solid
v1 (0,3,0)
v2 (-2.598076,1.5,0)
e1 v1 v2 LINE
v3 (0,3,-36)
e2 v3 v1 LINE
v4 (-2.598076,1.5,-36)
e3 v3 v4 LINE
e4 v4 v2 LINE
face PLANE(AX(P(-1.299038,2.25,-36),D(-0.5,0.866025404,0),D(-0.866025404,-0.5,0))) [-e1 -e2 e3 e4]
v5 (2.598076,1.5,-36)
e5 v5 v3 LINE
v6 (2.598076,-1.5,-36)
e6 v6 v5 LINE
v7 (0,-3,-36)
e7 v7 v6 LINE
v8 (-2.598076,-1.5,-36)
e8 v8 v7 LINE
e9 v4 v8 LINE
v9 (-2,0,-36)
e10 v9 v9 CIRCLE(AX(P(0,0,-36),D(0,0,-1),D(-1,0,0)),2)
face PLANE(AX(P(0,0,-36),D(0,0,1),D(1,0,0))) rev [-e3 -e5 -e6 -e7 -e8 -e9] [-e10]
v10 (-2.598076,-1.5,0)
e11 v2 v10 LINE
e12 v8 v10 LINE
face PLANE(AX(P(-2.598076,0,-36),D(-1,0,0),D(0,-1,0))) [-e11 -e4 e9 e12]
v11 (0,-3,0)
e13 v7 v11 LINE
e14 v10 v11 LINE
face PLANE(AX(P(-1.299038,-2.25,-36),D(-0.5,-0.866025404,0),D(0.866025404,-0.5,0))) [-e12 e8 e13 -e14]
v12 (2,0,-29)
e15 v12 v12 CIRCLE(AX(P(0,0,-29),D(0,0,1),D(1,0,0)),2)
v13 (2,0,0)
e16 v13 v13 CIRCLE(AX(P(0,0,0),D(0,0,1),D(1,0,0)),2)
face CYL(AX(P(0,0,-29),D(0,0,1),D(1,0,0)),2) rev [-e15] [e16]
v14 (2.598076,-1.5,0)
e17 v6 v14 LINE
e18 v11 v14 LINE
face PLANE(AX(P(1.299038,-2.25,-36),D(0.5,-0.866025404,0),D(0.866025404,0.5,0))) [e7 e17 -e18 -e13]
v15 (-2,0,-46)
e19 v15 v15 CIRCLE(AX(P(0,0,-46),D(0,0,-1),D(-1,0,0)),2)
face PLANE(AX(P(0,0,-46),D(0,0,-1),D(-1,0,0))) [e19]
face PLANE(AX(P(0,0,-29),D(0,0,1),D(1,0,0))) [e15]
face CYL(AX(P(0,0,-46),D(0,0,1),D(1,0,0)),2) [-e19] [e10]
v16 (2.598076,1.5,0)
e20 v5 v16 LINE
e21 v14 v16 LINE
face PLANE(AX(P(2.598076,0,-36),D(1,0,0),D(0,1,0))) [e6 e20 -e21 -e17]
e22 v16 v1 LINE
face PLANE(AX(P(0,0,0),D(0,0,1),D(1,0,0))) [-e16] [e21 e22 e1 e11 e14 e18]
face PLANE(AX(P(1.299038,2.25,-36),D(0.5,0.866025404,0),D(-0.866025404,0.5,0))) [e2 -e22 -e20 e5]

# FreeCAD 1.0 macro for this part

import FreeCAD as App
import Part
import Sketcher
from FreeCAD import Vector
Q = App.Units.Quantity


def add_polygon(sketch, points):
    """Adds a closed chain of lines whose ends are joined by coincident constraints."""
    first, n = sketch.GeometryCount, len(points)
    for a, b in zip(points, points[1:] + points[:1]):
        sketch.addGeometry(Part.LineSegment(App.Vector(*a, 0), App.Vector(*b, 0)), False)
    for i in range(n):
        sketch.addConstraint(Sketcher.Constraint("Coincident", first + i, 2, first + (i + 1) % n, 1))

doc = App.newDocument("Part")
params = doc.addObject("Spreadsheet::Sheet", "Params")
for row, (alias, value) in enumerate([
    ("sketch1_height", "3 mm"),
    ("sketch1_length", "3 mm"),
    ("pad1_length", "36 mm"),
    ("sketch2_diameter", "4 mm"),
    ("pocket1_length", "29 mm"),
    ("sketch3_diameter", "4 mm"),
    ("pad2_length", "10 mm"),
], start=1):
    params.set(f"A{row}", alias)
    params.set(f"B{row}", "=" + value)
    params.setAlias(f"B{row}", alias)

body = doc.addObject("PartDesign::Body", "Body")

sketch1 = body.newObject("Sketcher::SketchObject", "Sketch")
sketch1.AttachmentSupport = (doc.getObject("XY_Plane"), [""])
sketch1.MapMode = "FlatFace"
add_polygon(sketch1, [(2.598076, -1.5), (2.598076, 1.5), (0, 3), (-2.598076, 1.5), (-2.598076, -1.5), (0, -3)])
sketch1.addConstraint([
    Sketcher.Constraint("Vertical", 0),
    Sketcher.Constraint("Vertical", 3),
    Sketcher.Constraint("Symmetric", 0, 2, 3, 2, -1, 1),
    Sketcher.Constraint("Symmetric", 1, 2, 4, 2, -1, 1),
    Sketcher.Constraint("PointOnObject", 1, 2, -2),
    Sketcher.Constraint("Parallel", 2, 5),
    Sketcher.Constraint("Horizontal", 0, 2, 2, 2),
    Sketcher.Constraint("DistanceY", 0, 1, 0, 2, Q("3 mm")),
    Sketcher.Constraint("Angle", 1, Q("150 deg")),
    Sketcher.Constraint("Distance", 1, Q("3 mm")),
])
sketch1.setExpression("Constraints[13]", "Params.sketch1_height")
sketch1.setExpression("Constraints[15]", "Params.sketch1_length")
pad1 = body.newObject("PartDesign::Pad", "Pad")
pad1.Profile = sketch1
pad1.setExpression("Length", "Params.pad1_length")
pad1.Reversed = True

sketch2 = body.newObject("Sketcher::SketchObject", "Sketch001")
sketch2.AttachmentSupport = (doc.getObject("XY_Plane"), [""])
sketch2.MapMode = "FlatFace"
sketch2.addGeometry(Part.Circle(Vector(0, 0, 0), Vector(0, 0, 1), 2), False)
sketch2.addConstraint([
    Sketcher.Constraint("Coincident", 0, 3, -1, 1),
    Sketcher.Constraint("Diameter", 0, Q("4 mm")),
])
sketch2.setExpression("Constraints[1]", "Params.sketch2_diameter")
pocket1 = body.newObject("PartDesign::Pocket", "Pocket")
pocket1.Profile = sketch2
pocket1.setExpression("Length", "Params.pocket1_length")

sketch3 = body.newObject("Sketcher::SketchObject", "Sketch002")
sketch3.AttachmentSupport = (doc.getObject("XY_Plane"), [""])
sketch3.MapMode = "FlatFace"
sketch3.AttachmentOffset = App.Placement(Vector(0, 0, -36), App.Rotation())
sketch3.addGeometry(Part.Circle(Vector(0, 0, 0), Vector(0, 0, 1), 2), False)
sketch3.addConstraint([
    Sketcher.Constraint("Coincident", 0, 3, -1, 1),
    Sketcher.Constraint("Diameter", 0, Q("4 mm")),
])
sketch3.setExpression("Constraints[1]", "Params.sketch3_diameter")
pad2 = body.newObject("PartDesign::Pad", "Pad001")
pad2.Profile = sketch3
pad2.setExpression("Length", "Params.pad2_length")
pad2.Reversed = True

doc.recompute()
